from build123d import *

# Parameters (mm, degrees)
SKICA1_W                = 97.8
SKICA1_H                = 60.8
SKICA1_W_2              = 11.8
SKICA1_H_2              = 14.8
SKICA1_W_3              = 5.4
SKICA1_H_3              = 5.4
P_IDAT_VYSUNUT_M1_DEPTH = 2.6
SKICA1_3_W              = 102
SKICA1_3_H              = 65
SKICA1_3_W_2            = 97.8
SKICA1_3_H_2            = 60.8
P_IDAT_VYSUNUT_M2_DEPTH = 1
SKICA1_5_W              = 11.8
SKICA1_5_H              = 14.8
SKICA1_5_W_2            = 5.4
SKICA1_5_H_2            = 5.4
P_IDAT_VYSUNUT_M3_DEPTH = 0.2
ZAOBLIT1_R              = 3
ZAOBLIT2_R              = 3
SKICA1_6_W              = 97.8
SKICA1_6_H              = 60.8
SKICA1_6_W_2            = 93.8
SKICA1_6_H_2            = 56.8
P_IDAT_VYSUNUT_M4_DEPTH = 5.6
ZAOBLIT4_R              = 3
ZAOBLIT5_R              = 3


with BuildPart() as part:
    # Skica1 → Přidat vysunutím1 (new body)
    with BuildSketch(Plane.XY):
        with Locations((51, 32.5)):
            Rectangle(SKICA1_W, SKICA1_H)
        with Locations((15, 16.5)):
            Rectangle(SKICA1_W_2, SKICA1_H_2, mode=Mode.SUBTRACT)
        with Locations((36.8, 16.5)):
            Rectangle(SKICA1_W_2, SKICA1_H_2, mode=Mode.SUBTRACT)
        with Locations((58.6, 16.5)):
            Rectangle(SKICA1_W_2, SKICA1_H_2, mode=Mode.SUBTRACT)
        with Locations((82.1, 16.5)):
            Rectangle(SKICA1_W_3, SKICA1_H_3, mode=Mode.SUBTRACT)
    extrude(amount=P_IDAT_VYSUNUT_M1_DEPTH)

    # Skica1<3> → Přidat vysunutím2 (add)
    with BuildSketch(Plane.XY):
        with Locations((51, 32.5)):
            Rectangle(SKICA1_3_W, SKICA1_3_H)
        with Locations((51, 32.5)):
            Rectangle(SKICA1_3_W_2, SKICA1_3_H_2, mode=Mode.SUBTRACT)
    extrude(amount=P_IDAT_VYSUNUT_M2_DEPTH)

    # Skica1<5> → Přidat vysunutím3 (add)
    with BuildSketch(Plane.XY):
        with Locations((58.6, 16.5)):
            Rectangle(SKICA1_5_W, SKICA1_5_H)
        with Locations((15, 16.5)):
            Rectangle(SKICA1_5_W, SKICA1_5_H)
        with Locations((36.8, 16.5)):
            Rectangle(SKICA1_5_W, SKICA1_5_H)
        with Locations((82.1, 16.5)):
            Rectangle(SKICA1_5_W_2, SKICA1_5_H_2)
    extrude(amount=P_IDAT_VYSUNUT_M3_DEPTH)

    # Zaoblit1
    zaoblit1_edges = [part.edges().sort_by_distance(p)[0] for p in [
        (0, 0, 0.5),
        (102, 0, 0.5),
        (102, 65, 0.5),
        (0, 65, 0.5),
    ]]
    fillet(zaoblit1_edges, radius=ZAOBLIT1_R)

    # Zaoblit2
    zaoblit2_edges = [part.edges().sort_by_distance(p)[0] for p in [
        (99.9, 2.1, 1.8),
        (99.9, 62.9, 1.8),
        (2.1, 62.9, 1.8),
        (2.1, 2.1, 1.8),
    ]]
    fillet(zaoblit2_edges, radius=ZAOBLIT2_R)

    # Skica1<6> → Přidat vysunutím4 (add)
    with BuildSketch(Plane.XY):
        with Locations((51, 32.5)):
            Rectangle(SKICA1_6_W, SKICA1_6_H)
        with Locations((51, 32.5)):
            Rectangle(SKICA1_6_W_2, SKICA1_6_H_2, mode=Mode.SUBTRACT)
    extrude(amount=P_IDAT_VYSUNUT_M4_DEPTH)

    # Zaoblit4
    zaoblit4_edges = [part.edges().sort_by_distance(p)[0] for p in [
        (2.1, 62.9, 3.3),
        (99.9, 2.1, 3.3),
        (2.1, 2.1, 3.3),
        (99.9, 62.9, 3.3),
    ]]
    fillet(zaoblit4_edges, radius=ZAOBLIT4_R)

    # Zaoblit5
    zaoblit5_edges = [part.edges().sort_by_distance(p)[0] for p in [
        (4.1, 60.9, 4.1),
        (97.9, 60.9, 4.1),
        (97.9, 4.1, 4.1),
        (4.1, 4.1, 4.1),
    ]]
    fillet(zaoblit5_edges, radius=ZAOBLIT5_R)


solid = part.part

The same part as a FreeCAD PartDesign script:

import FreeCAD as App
import Part
import Sketcher

V = App.Vector


def edges_at(feature, points):
    """Names of the edges that pass closest to the given points."""
    edges = feature.Shape.Edges
    near = lambda p: min(range(len(edges)), key=lambda i: edges[i].distToShape(Part.Vertex(*p))[0])
    return sorted({f"Edge{near(p) + 1}" for p in points})

doc = App.newDocument("Part")
body = doc.addObject("PartDesign::Body", "Body")

sketch1 = body.newObject("Sketcher::SketchObject", "Sketch")
sketch1.AttachmentSupport = (doc.getObject("XY_Plane"), [""])
sketch1.MapMode = "FlatFace"
sketch1.addGeometry([
    Part.LineSegment(V(2.1, 62.9, 0), V(2.1, 2.1, 0)),
    Part.LineSegment(V(2.1, 2.1, 0), V(99.9, 2.1, 0)),
    Part.LineSegment(V(99.9, 2.1, 0), V(99.9, 62.9, 0)),
    Part.LineSegment(V(99.9, 62.9, 0), V(2.1, 62.9, 0)),
    Part.LineSegment(V(20.9, 9.1, 0), V(9.1, 9.1, 0)),
    Part.LineSegment(V(9.1, 9.1, 0), V(9.1, 23.9, 0)),
    Part.LineSegment(V(9.1, 23.9, 0), V(20.9, 23.9, 0)),
    Part.LineSegment(V(20.9, 23.9, 0), V(20.9, 9.1, 0)),
    Part.LineSegment(V(42.7, 9.1, 0), V(30.9, 9.1, 0)),
    Part.LineSegment(V(30.9, 9.1, 0), V(30.9, 23.9, 0)),
    Part.LineSegment(V(30.9, 23.9, 0), V(42.7, 23.9, 0)),
    Part.LineSegment(V(42.7, 23.9, 0), V(42.7, 9.1, 0)),
    Part.LineSegment(V(64.5, 9.1, 0), V(52.7, 9.1, 0)),
    Part.LineSegment(V(52.7, 9.1, 0), V(52.7, 23.9, 0)),
    Part.LineSegment(V(52.7, 23.9, 0), V(64.5, 23.9, 0)),
    Part.LineSegment(V(64.5, 23.9, 0), V(64.5, 9.1, 0)),
    Part.LineSegment(V(84.8, 13.8, 0), V(79.4, 13.8, 0)),
    Part.LineSegment(V(79.4, 13.8, 0), V(79.4, 19.2, 0)),
    Part.LineSegment(V(79.4, 19.2, 0), V(84.8, 19.2, 0)),
    Part.LineSegment(V(84.8, 19.2, 0), V(84.8, 13.8, 0)),
], False)
sketch1.addConstraint([
    Sketcher.Constraint("Coincident", 0, 2, 1, 1),
    Sketcher.Constraint("Coincident", 1, 2, 2, 1),
    Sketcher.Constraint("Coincident", 2, 2, 3, 1),
    Sketcher.Constraint("Coincident", 3, 2, 0, 1),
    Sketcher.Constraint("Coincident", 4, 2, 5, 1),
    Sketcher.Constraint("Coincident", 5, 2, 6, 1),
    Sketcher.Constraint("Coincident", 6, 2, 7, 1),
    Sketcher.Constraint("Coincident", 7, 2, 4, 1),
    Sketcher.Constraint("Coincident", 8, 2, 9, 1),
    Sketcher.Constraint("Coincident", 9, 2, 10, 1),
    Sketcher.Constraint("Coincident", 10, 2, 11, 1),
    Sketcher.Constraint("Coincident", 11, 2, 8, 1),
    Sketcher.Constraint("Coincident", 12, 2, 13, 1),
    Sketcher.Constraint("Coincident", 13, 2, 14, 1),
    Sketcher.Constraint("Coincident", 14, 2, 15, 1),
    Sketcher.Constraint("Coincident", 15, 2, 12, 1),
    Sketcher.Constraint("Coincident", 16, 2, 17, 1),
    Sketcher.Constraint("Coincident", 17, 2, 18, 1),
    Sketcher.Constraint("Coincident", 18, 2, 19, 1),
    Sketcher.Constraint("Coincident", 19, 2, 16, 1),
    Sketcher.Constraint("Vertical", 0),
    Sketcher.Constraint("Horizontal", 1),
    Sketcher.Constraint("Vertical", 2),
    Sketcher.Constraint("Horizontal", 3),
    Sketcher.Constraint("Horizontal", 4),
    Sketcher.Constraint("Vertical", 5),
    Sketcher.Constraint("Horizontal", 6),
    Sketcher.Constraint("Vertical", 7),
    Sketcher.Constraint("Horizontal", 8),
    Sketcher.Constraint("Vertical", 9),
    Sketcher.Constraint("Horizontal", 10),
    Sketcher.Constraint("Vertical", 11),
    Sketcher.Constraint("Horizontal", 12),
    Sketcher.Constraint("Vertical", 13),
    Sketcher.Constraint("Horizontal", 14),
    Sketcher.Constraint("Vertical", 15),
    Sketcher.Constraint("Horizontal", 16),
    Sketcher.Constraint("Vertical", 17),
    Sketcher.Constraint("Horizontal", 18),
    Sketcher.Constraint("Vertical", 19),
    Sketcher.Constraint("Horizontal", 7, 2, 8, 2),
    Sketcher.Constraint("Horizontal", 6, 2, 9, 2),
    Sketcher.Constraint("Horizontal", 11, 2, 12, 2),
    Sketcher.Constraint("Horizontal", 10, 2, 13, 2),
    Sketcher.Constraint("Equal", 6, 8),
    Sketcher.Constraint("Equal", 10, 12),
    Sketcher.Constraint("Equal", 18, 17),
    Sketcher.Constraint("DistanceX", 1, 1, 1, 2, 97.8),
    Sketcher.Constraint("DistanceX", 4, 2, 4, 1, 11.8),
    Sketcher.Constraint("DistanceX", 16, 2, 16, 1, 5.4),
    Sketcher.Constraint("DistanceY", 0, 2, 0, 1, 60.8),
    Sketcher.Constraint("DistanceY", 5, 1, 5, 2, 14.8),
    Sketcher.Constraint("DistanceX", 0, 2, 4, 2, 7.0),
    Sketcher.Constraint("DistanceY", 0, 2, 4, 2, 7.0),
    Sketcher.Constraint("DistanceX", 7, 2, 8, 2, 10.0),
    Sketcher.Constraint("DistanceX", 11, 2, 12, 2, 10.0),
    Sketcher.Constraint("DistanceX", -1, 1, 0, 2, 2.1),
    Sketcher.Constraint("DistanceY", -1, 1, 0, 2, 2.1),
    Sketcher.Constraint("DistanceX", -1, 1, 16, 2, 79.4),
    Sketcher.Constraint("DistanceY", -1, 1, 16, 2, 13.8),
])
pad1 = body.newObject("PartDesign::Pad", "Pad")
pad1.Profile = sketch1
pad1.Length = 2.6

sketch2 = body.newObject("Sketcher::SketchObject", "Sketch001")
sketch2.AttachmentSupport = (doc.getObject("XY_Plane"), [""])
sketch2.MapMode = "FlatFace"
sketch2.addGeometry([
    Part.LineSegment(V(0, 65, 0), V(0, 0, 0)),
    Part.LineSegment(V(0, 0, 0), V(102, 0, 0)),
    Part.LineSegment(V(102, 0, 0), V(102, 65, 0)),
    Part.LineSegment(V(102, 65, 0), V(0, 65, 0)),
    Part.LineSegment(V(99.9, 2.1, 0), V(2.1, 2.1, 0)),
    Part.LineSegment(V(2.1, 2.1, 0), V(2.1, 62.9, 0)),
    Part.LineSegment(V(2.1, 62.9, 0), V(99.9, 62.9, 0)),
    Part.LineSegment(V(99.9, 62.9, 0), V(99.9, 2.1, 0)),
], False)
sketch2.addConstraint([
    Sketcher.Constraint("Coincident", 0, 2, 1, 1),
    Sketcher.Constraint("Coincident", 1, 2, 2, 1),
    Sketcher.Constraint("Coincident", 2, 2, 3, 1),
    Sketcher.Constraint("Coincident", 3, 2, 0, 1),
    Sketcher.Constraint("Coincident", 4, 2, 5, 1),
    Sketcher.Constraint("Coincident", 5, 2, 6, 1),
    Sketcher.Constraint("Coincident", 6, 2, 7, 1),
    Sketcher.Constraint("Coincident", 7, 2, 4, 1),
    Sketcher.Constraint("Vertical", 0),
    Sketcher.Constraint("Horizontal", 1),
    Sketcher.Constraint("Vertical", 2),
    Sketcher.Constraint("Horizontal", 3),
    Sketcher.Constraint("Horizontal", 4),
    Sketcher.Constraint("Vertical", 5),
    Sketcher.Constraint("Horizontal", 6),
    Sketcher.Constraint("Vertical", 7),
    Sketcher.Constraint("Coincident", 0, 2, -1, 1),
    Sketcher.Constraint("DistanceX", 1, 1, 1, 2, 102.0),
    Sketcher.Constraint("DistanceY", 0, 2, 0, 1, 65.0),
    Sketcher.Constraint("DistanceX", 4, 2, 4, 1, 97.8),
    Sketcher.Constraint("DistanceY", 5, 1, 5, 2, 60.8),
    Sketcher.Constraint("DistanceX", -1, 1, 4, 2, 2.1),
    Sketcher.Constraint("DistanceY", -1, 1, 4, 2, 2.1),
])
pad2 = body.newObject("PartDesign::Pad", "Pad001")
pad2.Profile = sketch2
pad2.Length = 1

sketch3 = body.newObject("Sketcher::SketchObject", "Sketch002")
sketch3.AttachmentSupport = (doc.getObject("XY_Plane"), [""])
sketch3.MapMode = "FlatFace"
sketch3.addGeometry([
    Part.LineSegment(V(52.7, 23.9, 0), V(52.7, 9.1, 0)),
    Part.LineSegment(V(52.7, 9.1, 0), V(64.5, 9.1, 0)),
    Part.LineSegment(V(64.5, 9.1, 0), V(64.5, 23.9, 0)),
    Part.LineSegment(V(64.5, 23.9, 0), V(52.7, 23.9, 0)),
    Part.LineSegment(V(9.1, 23.9, 0), V(9.1, 9.1, 0)),
    Part.LineSegment(V(9.1, 9.1, 0), V(20.9, 9.1, 0)),
    Part.LineSegment(V(20.9, 9.1, 0), V(20.9, 23.9, 0)),
    Part.LineSegment(V(20.9, 23.9, 0), V(9.1, 23.9, 0)),
    Part.LineSegment(V(30.9, 23.9, 0), V(30.9, 9.1, 0)),
    Part.LineSegment(V(30.9, 9.1, 0), V(42.7, 9.1, 0)),
    Part.LineSegment(V(42.7, 9.1, 0), V(42.7, 23.9, 0)),
    Part.LineSegment(V(42.7, 23.9, 0), V(30.9, 23.9, 0)),
    Part.LineSegment(V(79.4, 19.2, 0), V(79.4, 13.8, 0)),
    Part.LineSegment(V(79.4, 13.8, 0), V(84.8, 13.8, 0)),
    Part.LineSegment(V(84.8, 13.8, 0), V(84.8, 19.2, 0)),
    Part.LineSegment(V(84.8, 19.2, 0), V(79.4, 19.2, 0)),
], False)
sketch3.addConstraint([
    Sketcher.Constraint("Coincident", 0, 2, 1, 1),
    Sketcher.Constraint("Coincident", 1, 2, 2, 1),
    Sketcher.Constraint("Coincident", 2, 2, 3, 1),
    Sketcher.Constraint("Coincident", 3, 2, 0, 1),
    Sketcher.Constraint("Coincident", 4, 2, 5, 1),
    Sketcher.Constraint("Coincident", 5, 2, 6, 1),
    Sketcher.Constraint("Coincident", 6, 2, 7, 1),
    Sketcher.Constraint("Coincident", 7, 2, 4, 1),
    Sketcher.Constraint("Coincident", 8, 2, 9, 1),
    Sketcher.Constraint("Coincident", 9, 2, 10, 1),
    Sketcher.Constraint("Coincident", 10, 2, 11, 1),
    Sketcher.Constraint("Coincident", 11, 2, 8, 1),
    Sketcher.Constraint("Coincident", 12, 2, 13, 1),
    Sketcher.Constraint("Coincident", 13, 2, 14, 1),
    Sketcher.Constraint("Coincident", 14, 2, 15, 1),
    Sketcher.Constraint("Coincident", 15, 2, 12, 1),
    Sketcher.Constraint("Vertical", 0),
    Sketcher.Constraint("Horizontal", 1),
    Sketcher.Constraint("Vertical", 2),
    Sketcher.Constraint("Horizontal", 3),
    Sketcher.Constraint("Vertical", 4),
    Sketcher.Constraint("Horizontal", 5),
    Sketcher.Constraint("Vertical", 6),
    Sketcher.Constraint("Horizontal", 7),
    Sketcher.Constraint("Vertical", 8),
    Sketcher.Constraint("Horizontal", 9),
    Sketcher.Constraint("Vertical", 10),
    Sketcher.Constraint("Horizontal", 11),
    Sketcher.Constraint("Vertical", 12),
    Sketcher.Constraint("Horizontal", 13),
    Sketcher.Constraint("Vertical", 14),
    Sketcher.Constraint("Horizontal", 15),
    Sketcher.Constraint("Horizontal", 1, 2, 4, 2),
    Sketcher.Constraint("Horizontal", 3, 2, 6, 2),
    Sketcher.Constraint("Horizontal", 5, 2, 8, 2),
    Sketcher.Constraint("Horizontal", 7, 2, 10, 2),
    Sketcher.Constraint("Equal", 3, 5),
    Sketcher.Constraint("Equal", 7, 9),
    Sketcher.Constraint("Equal", 15, 12),
    Sketcher.Constraint("DistanceX", 1, 1, 1, 2, 11.8),
    Sketcher.Constraint("DistanceX", 13, 1, 13, 2, 5.4),
    Sketcher.Constraint("DistanceY", 0, 2, 0, 1, 14.8),
    Sketcher.Constraint("DistanceX", 5, 2, 8, 2, 10.0),
    Sketcher.Constraint("DistanceX", 9, 2, 0, 2, 10.0),
    Sketcher.Constraint("DistanceX", -1, 1, 0, 2, 52.7),
    Sketcher.Constraint("DistanceY", -1, 1, 0, 2, 9.1),
    Sketcher.Constraint("DistanceX", -1, 1, 12, 2, 79.4),
    Sketcher.Constraint("DistanceY", -1, 1, 12, 2, 13.8),
])
pad3 = body.newObject("PartDesign::Pad", "Pad002")
pad3.Profile = sketch3
pad3.Length = 0.2
doc.recompute()

fillet = body.newObject("PartDesign::Fillet", "Fillet")
fillet.Base = (pad3, edges_at(pad3, [
    (0, 0, 0.5),
    (102, 0, 0.5),
    (102, 65, 0.5),
    (0, 65, 0.5),
]))
fillet.Radius = 3
doc.recompute()

fillet2 = body.newObject("PartDesign::Fillet", "Fillet001")
fillet2.Base = (fillet, edges_at(fillet, [
    (99.9, 2.1, 1.8),
    (99.9, 62.9, 1.8),
    (2.1, 62.9, 1.8),
    (2.1, 2.1, 1.8),
]))
fillet2.Radius = 3

sketch4 = body.newObject("Sketcher::SketchObject", "Sketch003")
sketch4.AttachmentSupport = (doc.getObject("XY_Plane"), [""])
sketch4.MapMode = "FlatFace"
sketch4.addGeometry([
    Part.LineSegment(V(2.1, 62.9, 0), V(2.1, 2.1, 0)),
    Part.LineSegment(V(2.1, 2.1, 0), V(99.9, 2.1, 0)),
    Part.LineSegment(V(99.9, 2.1, 0), V(99.9, 62.9, 0)),
    Part.LineSegment(V(99.9, 62.9, 0), V(2.1, 62.9, 0)),
    Part.LineSegment(V(97.9, 4.1, 0), V(4.1, 4.1, 0)),
    Part.LineSegment(V(4.1, 4.1, 0), V(4.1, 60.9, 0)),
    Part.LineSegment(V(4.1, 60.9, 0), V(97.9, 60.9, 0)),
    Part.LineSegment(V(97.9, 60.9, 0), V(97.9, 4.1, 0)),
], False)
sketch4.addConstraint([
    Sketcher.Constraint("Coincident", 0, 2, 1, 1),
    Sketcher.Constraint("Coincident", 1, 2, 2, 1),
    Sketcher.Constraint("Coincident", 2, 2, 3, 1),
    Sketcher.Constraint("Coincident", 3, 2, 0, 1),
    Sketcher.Constraint("Coincident", 4, 2, 5, 1),
    Sketcher.Constraint("Coincident", 5, 2, 6, 1),
    Sketcher.Constraint("Coincident", 6, 2, 7, 1),
    Sketcher.Constraint("Coincident", 7, 2, 4, 1),
    Sketcher.Constraint("Vertical", 0),
    Sketcher.Constraint("Horizontal", 1),
    Sketcher.Constraint("Vertical", 2),
    Sketcher.Constraint("Horizontal", 3),
    Sketcher.Constraint("Horizontal", 4),
    Sketcher.Constraint("Vertical", 5),
    Sketcher.Constraint("Horizontal", 6),
    Sketcher.Constraint("Vertical", 7),
    Sketcher.Constraint("DistanceX", 1, 1, 1, 2, 97.8),
    Sketcher.Constraint("DistanceX", 4, 2, 4, 1, 93.8),
    Sketcher.Constraint("DistanceY", 0, 2, 0, 1, 60.8),
    Sketcher.Constraint("DistanceY", 5, 1, 5, 2, 56.8),
    Sketcher.Constraint("DistanceX", 0, 2, 4, 2, 2.0),
    Sketcher.Constraint("DistanceY", 0, 2, 4, 2, 2.0),
    Sketcher.Constraint("DistanceX", -1, 1, 0, 2, 2.1),
    Sketcher.Constraint("DistanceY", -1, 1, 0, 2, 2.1),
])
pad4 = body.newObject("PartDesign::Pad", "Pad003")
pad4.Profile = sketch4
pad4.Length = 5.6
doc.recompute()

fillet3 = body.newObject("PartDesign::Fillet", "Fillet002")
fillet3.Base = (pad4, edges_at(pad4, [
    (2.1, 62.9, 3.3),
    (99.9, 2.1, 3.3),
    (2.1, 2.1, 3.3),
    (99.9, 62.9, 3.3),
]))
fillet3.Radius = 3
doc.recompute()

fillet4 = body.newObject("PartDesign::Fillet", "Fillet003")
fillet4.Base = (fillet3, edges_at(fillet3, [
    (4.1, 60.9, 4.1),
    (97.9, 60.9, 4.1),
    (97.9, 4.1, 4.1),
    (4.1, 4.1, 4.1),
]))
fillet4.Radius = 3

doc.recompute()
